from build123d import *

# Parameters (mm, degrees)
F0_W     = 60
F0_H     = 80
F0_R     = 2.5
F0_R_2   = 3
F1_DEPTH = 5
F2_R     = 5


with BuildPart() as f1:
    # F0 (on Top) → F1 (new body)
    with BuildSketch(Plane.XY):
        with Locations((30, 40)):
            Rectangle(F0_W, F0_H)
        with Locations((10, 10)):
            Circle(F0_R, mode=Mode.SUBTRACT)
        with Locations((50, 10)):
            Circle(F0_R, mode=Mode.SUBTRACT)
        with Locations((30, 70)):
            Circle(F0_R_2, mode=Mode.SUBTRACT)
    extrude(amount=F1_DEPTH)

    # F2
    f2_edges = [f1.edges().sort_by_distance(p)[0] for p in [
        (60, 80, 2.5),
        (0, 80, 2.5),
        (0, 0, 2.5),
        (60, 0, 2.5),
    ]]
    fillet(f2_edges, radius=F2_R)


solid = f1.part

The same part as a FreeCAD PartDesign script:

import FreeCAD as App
import Part
import Sketcher


def edges_at(feature, points):
    """Names of the edges that pass closest to the given points."""
    edges = feature.Shape.Edges
    near = lambda p: min(range(len(edges)), key=lambda i: edges[i].distToShape(Part.Vertex(*p))[0])
    return sorted({f"Edge{near(p) + 1}" for p in points})

doc = App.newDocument("Part")
body = doc.addObject("PartDesign::Body", "Body")

# Sketch on XY plane
sketch1 = body.newObject("Sketcher::SketchObject", "Sketch")
sketch1.AttachmentSupport = (doc.getObject("XY_Plane"), [""])
sketch1.MapMode = "FlatFace"
sketch1.addGeometry([
    Part.LineSegment(App.Vector(0, 80, 0), App.Vector(0, 0, 0)),  # 0
    Part.LineSegment(App.Vector(0, 0, 0), App.Vector(60, 0, 0)),  # 1
    Part.LineSegment(App.Vector(60, 0, 0), App.Vector(60, 80, 0)),  # 2
    Part.LineSegment(App.Vector(60, 80, 0), App.Vector(0, 80, 0)),  # 3
    Part.Circle(App.Vector(10, 10, 0), App.Vector(0, 0, 1), 2.5),  # 4
    Part.Circle(App.Vector(50, 10, 0), App.Vector(0, 0, 1), 2.5),  # 5
    Part.Circle(App.Vector(30, 70, 0), App.Vector(0, 0, 1), 3),  # 6
], False)
sketch1.addConstraint([
    Sketcher.Constraint("Coincident", 0, 2, 1, 1),
    Sketcher.Constraint("Coincident", 1, 2, 2, 1),
    Sketcher.Constraint("Coincident", 2, 2, 3, 1),
    Sketcher.Constraint("Coincident", 3, 2, 0, 1),
    Sketcher.Constraint("Vertical", 0),
    Sketcher.Constraint("Horizontal", 1),
    Sketcher.Constraint("Vertical", 2),
    Sketcher.Constraint("Horizontal", 3),
    Sketcher.Constraint("Coincident", 0, 2, -1, 1),
    Sketcher.Constraint("Equal", 4, 5),
    Sketcher.Constraint("Horizontal", 4, 3, 5, 3),
    Sketcher.Constraint("Diameter", 4, 5.0),
    Sketcher.Constraint("Diameter", 6, 6.0),
    Sketcher.Constraint("DistanceX", 1, 1, 1, 2, 60.0),
    Sketcher.Constraint("DistanceY", 0, 2, 0, 1, 80.0),
    Sketcher.Constraint("DistanceX", -1, 1, 4, 3, 10.0),
    Sketcher.Constraint("DistanceY", -1, 1, 4, 3, 10.0),
    Sketcher.Constraint("DistanceX", -1, 1, 5, 3, 50.0),
    Sketcher.Constraint("DistanceX", -1, 1, 6, 3, 30.0),
    Sketcher.Constraint("DistanceY", -1, 1, 6, 3, 70.0),
])
pad1 = body.newObject("PartDesign::Pad", "Pad")
pad1.Profile = sketch1
pad1.Length = 5
doc.recompute()

fillet = body.newObject("PartDesign::Fillet", "Fillet")
fillet.Base = (pad1, edges_at(pad1, [
    (60, 80, 2.5),
    (0, 80, 2.5),
    (0, 0, 2.5),
    (60, 0, 2.5),
]))
fillet.Radius = 5

doc.recompute()
